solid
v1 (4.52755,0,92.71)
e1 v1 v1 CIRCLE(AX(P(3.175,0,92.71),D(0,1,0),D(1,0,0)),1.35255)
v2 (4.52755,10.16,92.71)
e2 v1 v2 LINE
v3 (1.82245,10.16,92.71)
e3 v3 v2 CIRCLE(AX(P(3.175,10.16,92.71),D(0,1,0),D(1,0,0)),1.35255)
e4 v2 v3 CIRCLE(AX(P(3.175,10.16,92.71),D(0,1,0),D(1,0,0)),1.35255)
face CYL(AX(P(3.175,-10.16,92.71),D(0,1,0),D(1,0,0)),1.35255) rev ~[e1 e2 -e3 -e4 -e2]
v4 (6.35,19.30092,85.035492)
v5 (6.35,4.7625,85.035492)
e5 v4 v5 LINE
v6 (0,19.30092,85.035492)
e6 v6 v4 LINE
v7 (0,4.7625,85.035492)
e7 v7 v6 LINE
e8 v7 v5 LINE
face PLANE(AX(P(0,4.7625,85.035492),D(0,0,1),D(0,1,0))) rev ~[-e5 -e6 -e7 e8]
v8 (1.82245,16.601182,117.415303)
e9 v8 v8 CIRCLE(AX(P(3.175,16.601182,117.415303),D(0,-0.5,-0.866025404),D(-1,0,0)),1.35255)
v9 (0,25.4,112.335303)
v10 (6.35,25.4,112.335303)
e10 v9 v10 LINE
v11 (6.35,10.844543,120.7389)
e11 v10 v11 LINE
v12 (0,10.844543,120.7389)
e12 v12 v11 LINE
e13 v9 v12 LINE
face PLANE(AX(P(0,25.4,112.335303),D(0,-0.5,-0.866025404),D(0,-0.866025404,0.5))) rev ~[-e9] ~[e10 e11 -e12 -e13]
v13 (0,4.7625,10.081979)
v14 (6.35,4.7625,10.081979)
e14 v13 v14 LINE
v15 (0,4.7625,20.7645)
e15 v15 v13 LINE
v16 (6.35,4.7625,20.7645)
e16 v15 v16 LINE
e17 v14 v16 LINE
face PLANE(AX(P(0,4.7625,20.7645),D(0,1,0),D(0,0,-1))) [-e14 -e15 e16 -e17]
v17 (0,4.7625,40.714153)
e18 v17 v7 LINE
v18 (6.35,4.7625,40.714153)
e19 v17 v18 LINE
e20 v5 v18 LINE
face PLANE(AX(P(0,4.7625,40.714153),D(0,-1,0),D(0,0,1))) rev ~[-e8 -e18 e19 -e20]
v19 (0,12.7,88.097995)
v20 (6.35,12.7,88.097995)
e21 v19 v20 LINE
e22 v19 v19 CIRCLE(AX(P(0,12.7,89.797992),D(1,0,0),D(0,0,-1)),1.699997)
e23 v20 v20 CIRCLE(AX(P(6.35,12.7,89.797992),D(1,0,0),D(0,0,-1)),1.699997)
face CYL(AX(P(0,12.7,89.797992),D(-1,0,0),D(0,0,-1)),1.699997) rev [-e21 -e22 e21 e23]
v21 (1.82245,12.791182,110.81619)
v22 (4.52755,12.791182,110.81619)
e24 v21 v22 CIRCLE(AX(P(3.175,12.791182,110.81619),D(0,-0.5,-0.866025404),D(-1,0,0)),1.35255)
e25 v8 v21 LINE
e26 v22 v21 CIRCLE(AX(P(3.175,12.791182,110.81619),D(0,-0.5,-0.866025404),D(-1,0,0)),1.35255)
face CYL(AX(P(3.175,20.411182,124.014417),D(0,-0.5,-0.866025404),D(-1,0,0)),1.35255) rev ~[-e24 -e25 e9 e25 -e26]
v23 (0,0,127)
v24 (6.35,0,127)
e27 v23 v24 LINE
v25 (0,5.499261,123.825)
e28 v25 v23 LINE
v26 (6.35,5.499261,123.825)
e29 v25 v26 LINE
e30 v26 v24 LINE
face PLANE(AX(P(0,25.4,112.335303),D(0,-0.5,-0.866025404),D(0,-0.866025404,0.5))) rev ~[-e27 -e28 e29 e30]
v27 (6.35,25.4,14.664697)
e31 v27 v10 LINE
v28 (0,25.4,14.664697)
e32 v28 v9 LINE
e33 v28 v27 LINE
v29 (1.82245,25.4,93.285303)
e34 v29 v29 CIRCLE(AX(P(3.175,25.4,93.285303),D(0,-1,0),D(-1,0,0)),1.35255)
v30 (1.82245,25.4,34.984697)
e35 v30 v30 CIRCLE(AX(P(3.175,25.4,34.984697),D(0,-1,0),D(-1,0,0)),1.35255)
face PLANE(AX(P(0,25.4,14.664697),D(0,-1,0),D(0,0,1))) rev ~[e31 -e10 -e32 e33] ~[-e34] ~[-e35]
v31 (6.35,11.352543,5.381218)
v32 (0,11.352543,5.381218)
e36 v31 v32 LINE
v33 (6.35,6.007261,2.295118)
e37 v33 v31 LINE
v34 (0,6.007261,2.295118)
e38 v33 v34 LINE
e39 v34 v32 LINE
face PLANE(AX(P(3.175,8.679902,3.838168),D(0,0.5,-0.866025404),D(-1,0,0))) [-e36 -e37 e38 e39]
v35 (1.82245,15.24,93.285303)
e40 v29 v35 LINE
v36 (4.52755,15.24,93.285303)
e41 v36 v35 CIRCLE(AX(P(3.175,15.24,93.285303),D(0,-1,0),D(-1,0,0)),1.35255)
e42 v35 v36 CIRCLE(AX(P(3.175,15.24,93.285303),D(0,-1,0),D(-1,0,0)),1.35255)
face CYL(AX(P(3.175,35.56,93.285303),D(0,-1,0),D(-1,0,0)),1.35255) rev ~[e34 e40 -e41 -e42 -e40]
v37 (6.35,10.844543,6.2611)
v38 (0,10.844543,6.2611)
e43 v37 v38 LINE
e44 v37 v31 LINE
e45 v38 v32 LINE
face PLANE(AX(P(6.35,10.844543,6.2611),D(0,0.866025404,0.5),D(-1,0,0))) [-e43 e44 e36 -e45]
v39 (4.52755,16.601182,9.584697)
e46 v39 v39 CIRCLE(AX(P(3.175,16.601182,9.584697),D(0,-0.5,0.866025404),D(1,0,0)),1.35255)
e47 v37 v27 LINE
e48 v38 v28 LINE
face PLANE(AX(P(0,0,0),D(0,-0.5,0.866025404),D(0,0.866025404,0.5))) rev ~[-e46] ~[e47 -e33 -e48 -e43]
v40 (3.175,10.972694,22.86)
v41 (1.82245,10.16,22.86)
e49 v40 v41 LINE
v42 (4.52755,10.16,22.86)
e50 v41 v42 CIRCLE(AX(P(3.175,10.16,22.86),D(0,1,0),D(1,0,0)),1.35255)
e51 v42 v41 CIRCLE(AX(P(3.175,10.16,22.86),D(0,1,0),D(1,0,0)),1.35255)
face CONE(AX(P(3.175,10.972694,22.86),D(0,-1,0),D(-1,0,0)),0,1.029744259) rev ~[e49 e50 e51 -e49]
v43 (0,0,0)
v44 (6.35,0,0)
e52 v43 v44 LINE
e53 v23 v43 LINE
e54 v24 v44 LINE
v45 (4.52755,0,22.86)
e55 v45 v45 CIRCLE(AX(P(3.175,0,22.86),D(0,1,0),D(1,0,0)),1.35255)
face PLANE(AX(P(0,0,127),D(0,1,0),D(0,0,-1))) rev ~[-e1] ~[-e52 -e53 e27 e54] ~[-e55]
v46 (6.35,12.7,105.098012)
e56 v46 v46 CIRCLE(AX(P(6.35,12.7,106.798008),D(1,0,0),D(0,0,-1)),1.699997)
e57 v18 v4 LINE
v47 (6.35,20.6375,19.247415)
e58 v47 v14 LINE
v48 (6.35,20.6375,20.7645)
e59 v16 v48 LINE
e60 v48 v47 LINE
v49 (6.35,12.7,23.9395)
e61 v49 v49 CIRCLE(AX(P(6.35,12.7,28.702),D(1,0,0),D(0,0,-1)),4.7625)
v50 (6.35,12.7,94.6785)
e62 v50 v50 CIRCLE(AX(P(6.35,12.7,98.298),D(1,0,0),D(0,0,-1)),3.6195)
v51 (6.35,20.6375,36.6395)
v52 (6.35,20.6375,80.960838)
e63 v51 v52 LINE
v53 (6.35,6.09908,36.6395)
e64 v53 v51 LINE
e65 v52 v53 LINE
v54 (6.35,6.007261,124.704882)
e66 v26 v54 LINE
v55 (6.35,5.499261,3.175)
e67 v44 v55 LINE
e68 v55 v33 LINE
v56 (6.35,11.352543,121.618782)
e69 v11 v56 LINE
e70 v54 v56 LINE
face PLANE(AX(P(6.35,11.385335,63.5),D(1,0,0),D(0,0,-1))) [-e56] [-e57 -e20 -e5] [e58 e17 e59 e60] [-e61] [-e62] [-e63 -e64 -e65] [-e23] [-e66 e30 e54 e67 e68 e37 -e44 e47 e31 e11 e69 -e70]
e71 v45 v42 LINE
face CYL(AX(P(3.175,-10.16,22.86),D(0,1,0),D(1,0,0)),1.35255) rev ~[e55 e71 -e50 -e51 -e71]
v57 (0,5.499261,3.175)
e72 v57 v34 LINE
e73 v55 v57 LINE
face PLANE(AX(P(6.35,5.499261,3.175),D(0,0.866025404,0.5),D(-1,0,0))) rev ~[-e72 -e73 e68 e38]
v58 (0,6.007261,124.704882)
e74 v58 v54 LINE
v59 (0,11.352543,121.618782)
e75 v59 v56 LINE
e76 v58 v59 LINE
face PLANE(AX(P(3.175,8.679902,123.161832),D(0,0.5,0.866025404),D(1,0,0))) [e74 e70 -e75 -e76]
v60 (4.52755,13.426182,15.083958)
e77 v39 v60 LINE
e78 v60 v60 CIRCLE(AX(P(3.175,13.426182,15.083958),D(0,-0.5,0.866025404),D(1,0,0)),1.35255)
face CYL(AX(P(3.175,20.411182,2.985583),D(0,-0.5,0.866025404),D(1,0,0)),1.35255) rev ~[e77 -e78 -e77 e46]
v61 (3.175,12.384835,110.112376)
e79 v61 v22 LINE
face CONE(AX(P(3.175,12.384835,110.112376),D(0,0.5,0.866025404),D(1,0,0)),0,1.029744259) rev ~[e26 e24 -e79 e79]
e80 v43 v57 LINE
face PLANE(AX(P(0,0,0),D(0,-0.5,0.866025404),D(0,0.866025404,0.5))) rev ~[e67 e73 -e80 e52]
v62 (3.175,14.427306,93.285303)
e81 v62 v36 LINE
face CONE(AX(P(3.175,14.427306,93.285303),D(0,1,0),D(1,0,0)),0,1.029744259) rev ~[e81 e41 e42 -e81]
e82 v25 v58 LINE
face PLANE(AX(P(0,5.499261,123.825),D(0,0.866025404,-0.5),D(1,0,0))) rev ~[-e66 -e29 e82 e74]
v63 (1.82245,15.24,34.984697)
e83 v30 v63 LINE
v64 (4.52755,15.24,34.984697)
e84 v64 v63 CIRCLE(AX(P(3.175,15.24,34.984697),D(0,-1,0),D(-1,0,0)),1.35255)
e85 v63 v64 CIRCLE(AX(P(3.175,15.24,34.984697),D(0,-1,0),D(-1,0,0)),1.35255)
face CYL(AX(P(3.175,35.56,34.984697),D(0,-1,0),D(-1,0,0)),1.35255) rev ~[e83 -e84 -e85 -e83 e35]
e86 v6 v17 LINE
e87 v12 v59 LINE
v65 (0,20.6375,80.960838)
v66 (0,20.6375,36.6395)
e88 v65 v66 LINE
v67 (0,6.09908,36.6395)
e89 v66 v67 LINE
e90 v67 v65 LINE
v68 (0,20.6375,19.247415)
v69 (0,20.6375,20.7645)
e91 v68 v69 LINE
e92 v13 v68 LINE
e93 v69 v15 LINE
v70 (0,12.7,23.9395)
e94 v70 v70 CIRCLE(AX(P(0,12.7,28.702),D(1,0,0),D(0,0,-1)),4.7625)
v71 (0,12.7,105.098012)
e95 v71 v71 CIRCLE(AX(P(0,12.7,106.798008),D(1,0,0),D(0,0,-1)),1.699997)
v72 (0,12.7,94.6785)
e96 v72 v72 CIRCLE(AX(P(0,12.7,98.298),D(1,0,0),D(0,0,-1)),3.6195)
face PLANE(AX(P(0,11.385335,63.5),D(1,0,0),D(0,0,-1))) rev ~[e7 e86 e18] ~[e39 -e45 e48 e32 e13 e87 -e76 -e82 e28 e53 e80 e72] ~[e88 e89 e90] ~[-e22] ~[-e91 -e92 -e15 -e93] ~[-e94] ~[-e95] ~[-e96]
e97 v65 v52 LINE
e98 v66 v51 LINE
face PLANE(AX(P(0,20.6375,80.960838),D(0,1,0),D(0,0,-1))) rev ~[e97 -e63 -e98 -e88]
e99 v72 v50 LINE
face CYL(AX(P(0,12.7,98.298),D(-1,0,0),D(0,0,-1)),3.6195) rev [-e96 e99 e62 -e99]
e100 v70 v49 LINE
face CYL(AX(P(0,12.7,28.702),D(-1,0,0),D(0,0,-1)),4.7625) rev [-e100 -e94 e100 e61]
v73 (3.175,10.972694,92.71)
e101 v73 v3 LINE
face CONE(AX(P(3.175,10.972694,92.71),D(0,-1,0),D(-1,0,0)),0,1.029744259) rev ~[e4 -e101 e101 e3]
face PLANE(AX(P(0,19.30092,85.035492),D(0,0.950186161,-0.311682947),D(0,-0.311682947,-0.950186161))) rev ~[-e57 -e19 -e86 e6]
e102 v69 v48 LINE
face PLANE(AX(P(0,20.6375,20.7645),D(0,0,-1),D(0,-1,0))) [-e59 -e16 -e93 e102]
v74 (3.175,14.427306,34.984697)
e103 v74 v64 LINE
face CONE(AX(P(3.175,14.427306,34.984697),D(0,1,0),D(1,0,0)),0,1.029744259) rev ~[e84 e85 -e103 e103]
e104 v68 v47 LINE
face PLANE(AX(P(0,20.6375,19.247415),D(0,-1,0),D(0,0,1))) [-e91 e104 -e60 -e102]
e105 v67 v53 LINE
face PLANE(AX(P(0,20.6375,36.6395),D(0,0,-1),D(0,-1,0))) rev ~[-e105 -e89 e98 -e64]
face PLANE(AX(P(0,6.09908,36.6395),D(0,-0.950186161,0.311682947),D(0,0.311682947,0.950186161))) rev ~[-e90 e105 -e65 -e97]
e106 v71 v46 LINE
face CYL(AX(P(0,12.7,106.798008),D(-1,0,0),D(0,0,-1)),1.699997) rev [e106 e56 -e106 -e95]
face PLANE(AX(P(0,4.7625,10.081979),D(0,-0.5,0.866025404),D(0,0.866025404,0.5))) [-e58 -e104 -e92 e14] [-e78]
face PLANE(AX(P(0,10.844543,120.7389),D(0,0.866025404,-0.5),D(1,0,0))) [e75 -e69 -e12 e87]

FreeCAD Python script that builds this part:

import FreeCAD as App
import Part
import Sketcher
Q = App.Units.Quantity


def add_polygon(sketch, points):
    """Adds a closed chain of lines whose ends are joined by coincident constraints."""
    first, n = sketch.GeometryCount, len(points)
    for a, b in zip(points, points[1:] + points[:1]):
        sketch.addGeometry(Part.LineSegment(App.Vector(*a, 0), App.Vector(*b, 0)), False)
    for i in range(n):
        sketch.addConstraint(Sketcher.Constraint("Coincident", first + i, 2, first + (i + 1) % n, 1))

doc = App.newDocument("Part")
body = doc.addObject("PartDesign::Body", "Body")

# Sketch on YZ plane
sketch1 = doc.addObject("Sketcher::SketchObject", "Sketch")
body.addObject(sketch1)
sketch1.AttachmentSupport = (doc.YZ_Plane, [""])
sketch1.MapMode = "FlatFace"
add_polygon(sketch1, [(0, 0), (25.4, 14.7), (25.4, 112.3), (0, 127)])  # lines 0-3
sketch1.addGeometry(Part.Circle(App.Vector(12.7, 106.8, 0), App.Vector(0, 0, 1), 1.7), False)  # 4
sketch1.addGeometry(Part.Circle(App.Vector(12.7, 98.3, 0), App.Vector(0, 0, 1), 3.6), False)  # 5
sketch1.addGeometry(Part.Circle(App.Vector(12.7, 89.8, 0), App.Vector(0, 0, 1), 1.7), False)  # 6
sketch1.addGeometry(Part.Circle(App.Vector(12.7, 28.7, 0), App.Vector(0, 0, 1), 4.8), False)  # 7
sketch1.addConstraint([
    Sketcher.Constraint("Vertical", 1),
    Sketcher.Constraint("Vertical", 3),
    Sketcher.Constraint("Coincident", 3, 2, -1, 1),
    Sketcher.Constraint("Equal", 4, 6),
    Sketcher.Constraint("Vertical", 4, 3, 5, 3),
    Sketcher.Constraint("Vertical", 5, 3, 6, 3),
    Sketcher.Constraint("Vertical", 6, 3, 7, 3),
    Sketcher.Constraint("Equal", 0, 2),
    Sketcher.Constraint("DistanceY", 3, 2, 3, 1, Q("5 in")),
    Sketcher.Constraint("Diameter", 5, Q("0.285 in")),
    Sketcher.Constraint("Diameter", 7, Q("0.375 in")),
    Sketcher.Constraint("DistanceX", -1, 1, 0, 2, Q("1 in")),
    Sketcher.Constraint("Angle", 0, Q("30 deg")),
    Sketcher.Constraint("DistanceX", -1, 1, 4, 3, Q("0.5 in")),
    Sketcher.Constraint("DistanceY", -1, 1, 5, 3, Q("3.87 in")),
    Sketcher.Constraint("DistanceY", -1, 1, 7, 3, Q("1.13 in")),
    Sketcher.Constraint("Diameter", 4, 3.399993),
    Sketcher.Constraint("DistanceY", -1, 1, 4, 3, 106.798008),
    Sketcher.Constraint("DistanceY", -1, 1, 6, 3, 89.797992),
])
pad1 = doc.addObject("PartDesign::Pad", "Pad")
body.addObject(pad1)
pad1.Profile = sketch1
pad1.Length = Q("0.25 in")

# Sketch on XZ plane
sketch2 = doc.addObject("Sketcher::SketchObject", "Sketch001")
body.addObject(sketch2)
sketch2.AttachmentSupport = (doc.XZ_Plane, [""])
sketch2.MapMode = "FlatFace"
sketch2.AttachmentOffset = App.Placement(App.Vector(0, 0, -1 * 25.4), App.Rotation())
sketch2.addGeometry([
    Part.Circle(App.Vector(3.2, 93.3, 0), App.Vector(0, 0, 1), 1.4),
    Part.Circle(App.Vector(3.2, 35, 0), App.Vector(0, 0, 1), 1.4),
], False)
sketch2.addConstraint([
    Sketcher.Constraint("Equal", 0, 1),
    Sketcher.Constraint("Vertical", 0, 3, 1, 3),
    Sketcher.Constraint("Diameter", 0, Q("0.1065 in")),
    Sketcher.Constraint("DistanceX", -1, 1, 0, 3, Q("0.125 in")),
    Sketcher.Constraint("DistanceY", -1, 1, 0, 3, 93.285303),
    Sketcher.Constraint("DistanceY", -1, 1, 1, 3, 34.984697),
])
doc.recompute()
hole = doc.addObject("PartDesign::Hole", "Hole")
body.addObject(hole)
hole.Profile = sketch2
hole.ThreadType = "None"
hole.Diameter = Q("0.1065 in")
hole.DepthType = "Dimension"
hole.Depth = Q("0.4 in")
hole.DrillPoint = "Angled"
hole.DrillPointAngle = 118
hole.Reversed = True

# Sketch on XZ plane
sketch3 = doc.addObject("Sketcher::SketchObject", "Sketch002")
body.addObject(sketch3)
sketch3.AttachmentSupport = (doc.XZ_Plane, [""])
sketch3.MapMode = "FlatFace"
sketch3.addGeometry([
    Part.Circle(App.Vector(3.2, 92.7, 0), App.Vector(0, 0, 1), 1.4),
    Part.Circle(App.Vector(3.2, 22.9, 0), App.Vector(0, 0, 1), 1.4),
], False)
sketch3.addConstraint([
    Sketcher.Constraint("Equal", 0, 1),
    Sketcher.Constraint("Vertical", 0, 3, 1, 3),
    Sketcher.Constraint("Diameter", 0, Q("0.1065 in")),
    Sketcher.Constraint("DistanceY", -1, 1, 1, 3, Q("0.9 in")),
    Sketcher.Constraint("DistanceY", -1, 1, 0, 3, Q("3.65 in")),
    Sketcher.Constraint("DistanceX", -1, 1, 0, 3, Q("0.125 in")),
])
doc.recompute()
hole2 = doc.addObject("PartDesign::Hole", "Hole001")
body.addObject(hole2)
hole2.Profile = sketch3
hole2.ThreadType = "None"
hole2.Diameter = Q("0.1065 in")
hole2.DepthType = "Dimension"
hole2.Depth = Q("0.4 in")
hole2.DrillPoint = "Angled"
hole2.DrillPointAngle = 118

# Sketch on an angled plane
sketch4 = doc.addObject("Sketcher::SketchObject", "Sketch003")
body.addObject(sketch4)
sketch4.Placement = App.Placement(App.Vector(0, 54.992613, 95.25), App.Rotation(App.Vector(1, 0, 0), App.Vector(0, 0.866025404, -0.5), App.Vector(0, 0.5, 0.866025404), "ZXY"))
add_polygon(sketch4, [(0, -51), (0, -57), (6, -57), (6, -51)])  # lines 0-3
sketch4.addConstraint([
    Sketcher.Constraint("Vertical", 0),
    Sketcher.Constraint("Horizontal", 1),
    Sketcher.Constraint("Vertical", 2),
    Sketcher.Constraint("Horizontal", 3),
    Sketcher.Constraint("PointOnObject", 0, 2, -2),
    Sketcher.Constraint("DistanceX", 1, 1, 1, 2, Q("0.25 in")),
    Sketcher.Constraint("DistanceY", 0, 2, 0, 1, Q("0.243 in")),
    Sketcher.Constraint("DistanceY", 0, 2, -1, 1, Q("2.25 in")),
])
pad2 = doc.addObject("PartDesign::Pad", "Pad001")
body.addObject(pad2)
pad2.Profile = sketch4
pad2.Length = Q("0.04 in")

# Sketch on an angled plane
sketch5 = doc.addObject("Sketcher::SketchObject", "Sketch004")
body.addObject(sketch5)
sketch5.Placement = App.Placement(App.Vector(0, 0, 0), App.Rotation(App.Vector(-1, 0, 0), App.Vector(0, 0.866025404, 0.5), App.Vector(0, 0.5, -0.866025404), "ZXY"))
add_polygon(sketch5, [(-6, 13), (-6, 6), (0, 6), (0, 13)])  # lines 0-3
sketch5.addConstraint([
    Sketcher.Constraint("Vertical", 0),
    Sketcher.Constraint("Horizontal", 1),
    Sketcher.Constraint("Vertical", 2),
    Sketcher.Constraint("Horizontal", 3),
    Sketcher.Constraint("PointOnObject", 1, 2, -2),
    Sketcher.Constraint("DistanceX", 1, 1, 1, 2, Q("0.25 in")),
    Sketcher.Constraint("DistanceY", 0, 2, 0, 1, Q("0.243 in")),
    Sketcher.Constraint("DistanceY", -1, 1, 0, 2, Q("0.25 in")),
])
pad3 = doc.addObject("PartDesign::Pad", "Pad002")
body.addObject(pad3)
pad3.Profile = sketch5
pad3.Length = Q("0.04 in")

# Sketch on an angled plane
sketch6 = doc.addObject("Sketcher::SketchObject", "Sketch005")
body.addObject(sketch6)
sketch6.Placement = App.Placement(App.Vector(0, 54.992613, 95.25), App.Rotation(App.Vector(1, 0, 0), App.Vector(0, 0.866025404, -0.5), App.Vector(0, 0.5, 0.866025404), "ZXY"))
sketch6.addGeometry(Part.Circle(App.Vector(3.2, -44.3, 0), App.Vector(0, 0, 1), 1.4), False)
sketch6.addConstraint([
    Sketcher.Constraint("Diameter", 0, Q("0.1065 in")),
    Sketcher.Constraint("DistanceX", -1, 1, 0, 3, Q("0.125 in")),
    Sketcher.Constraint("DistanceY", 0, 3, -1, 1, 44.330606),
])
doc.recompute()
hole3 = doc.addObject("PartDesign::Hole", "Hole002")
body.addObject(hole3)
hole3.Profile = sketch6
hole3.ThreadType = "None"
hole3.Diameter = Q("0.1065 in")
hole3.DepthType = "Dimension"
hole3.Depth = Q("0.3 in")
hole3.DrillPoint = "Angled"
hole3.DrillPointAngle = 118

# Sketch on an angled plane
sketch7 = doc.addObject("Sketcher::SketchObject", "Sketch006")
body.addObject(sketch7)
sketch7.Placement = App.Placement(App.Vector(0, 0, 0), App.Rotation(App.Vector(-1, 0, 0), App.Vector(0, 0.866025404, 0.5), App.Vector(0, 0.5, -0.866025404), "ZXY"))
sketch7.addGeometry(Part.Circle(App.Vector(-3.2, 19.2, 0), App.Vector(0, 0, 1), 1.4), False)
sketch7.addConstraint([
    Sketcher.Constraint("Diameter", 0, Q("0.1065 in")),
    Sketcher.Constraint("DistanceX", 0, 3, -1, 1, Q("0.125 in")),
    Sketcher.Constraint("DistanceY", -1, 1, 0, 3, 19.169394),
])
doc.recompute()
hole4 = doc.addObject("PartDesign::Hole", "Hole003")
body.addObject(hole4)
hole4.Profile = sketch7
hole4.ThreadType = "None"
hole4.Diameter = Q("0.1065 in")
hole4.DepthType = "Dimension"
hole4.Depth = Q("0.3 in")
hole4.DrillPoint = "Angled"
hole4.DrillPointAngle = 118

# Sketch on YZ plane
sketch8 = doc.addObject("Sketcher::SketchObject", "Sketch007")
body.addObject(sketch8)
sketch8.AttachmentSupport = (doc.YZ_Plane, [""])
sketch8.MapMode = "FlatFace"
add_polygon(sketch8, [(20.6, 81), (20.6, 36.6), (6.1, 36.6)])  # lines 0-2
add_polygon(sketch8, [(4.8, 85), (19.3, 85), (4.8, 40.7)])  # lines 3-5
add_polygon(sketch8, [(4.8, 20.8), (20.6, 20.8), (20.6, 19.2), (4.8, 10.1)])  # lines 6-9
sketch8.addConstraint([
    Sketcher.Constraint("Vertical", 0),
    Sketcher.Constraint("Horizontal", 1),
    Sketcher.Constraint("Horizontal", 3),
    Sketcher.Constraint("Vertical", 5),
    Sketcher.Constraint("Horizontal", 6),
    Sketcher.Constraint("Vertical", 7),
    Sketcher.Constraint("Vertical", 9),
    Sketcher.Constraint("Parallel", 2, 4),
    Sketcher.Constraint("Vertical", 2, 2, 6, 2),
    Sketcher.Constraint("Vertical", 5, 2, 8, 2),
    Sketcher.Constraint("Equal", 1, 3),
    Sketcher.Constraint("Angle", 8, Q("-150 deg")),
    Sketcher.Constraint("DistanceX", 6, 1, 6, 2, Q("0.625 in")),
    Sketcher.Constraint("DistanceX", -1, 1, 0, 2, Q("0.8125 in")),
    Sketcher.Constraint("DistanceY", 6, 2, 0, 2, Q("0.625 in")),
    Sketcher.Constraint("DistanceY", -1, 1, 0, 2, Q("1.4425 in")),
    Sketcher.Constraint("Distance", 2, 46.6449),
    Sketcher.Constraint("DistanceX", 1, 2, 1, 1, 14.53842),
    Sketcher.Constraint("DistanceY", 9, 1, 9, 2, 10.682521),
    Sketcher.Constraint("DistanceY", -1, 1, 3, 2, 85.035492),
])
pocket1 = doc.addObject("PartDesign::Pocket", "Pocket")
body.addObject(pocket1)
pocket1.Profile = sketch8
pocket1.Type = "ThroughAll"
pocket1.Reversed = True

doc.recompute()
